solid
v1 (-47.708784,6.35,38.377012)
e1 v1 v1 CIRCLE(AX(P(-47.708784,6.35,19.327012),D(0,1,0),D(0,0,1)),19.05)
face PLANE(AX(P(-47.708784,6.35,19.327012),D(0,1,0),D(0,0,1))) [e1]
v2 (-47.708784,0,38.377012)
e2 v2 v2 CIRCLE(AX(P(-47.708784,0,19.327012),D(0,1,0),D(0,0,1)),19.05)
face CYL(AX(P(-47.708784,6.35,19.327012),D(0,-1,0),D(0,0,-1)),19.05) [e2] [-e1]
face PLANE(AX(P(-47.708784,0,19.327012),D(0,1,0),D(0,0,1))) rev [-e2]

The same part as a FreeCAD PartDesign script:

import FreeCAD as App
import Part
import Sketcher
from FreeCAD import Vector
Q = App.Units.Quantity

doc = App.newDocument("Part")
body = doc.addObject("PartDesign::Body", "Body")

sketch1 = doc.addObject("Sketcher::SketchObject", "Sketch")
body.addObject(sketch1)
sketch1.AttachmentSupport = (doc.XZ_Plane, [""])
sketch1.MapMode = "FlatFace"
sketch1.addGeometry(Part.Circle(Vector(-47.708784, 19.327012, 0), Vector(0, 0, 1), 19.05), False)
sketch1.addConstraint(Sketcher.Constraint("Diameter", 0, Q("1.5 in")))
sketch1.addConstraint(Sketcher.Constraint("DistanceY", -1, 1, 0, 3, 19.327012))
sketch1.addConstraint(Sketcher.Constraint("DistanceX", 0, 3, -1, 1, 47.708784))
pad1 = doc.addObject("PartDesign::Pad", "Pad")
body.addObject(pad1)
pad1.Profile = sketch1
pad1.Length = Q("0.25 in")
pad1.Reversed = True

doc.recompute()
